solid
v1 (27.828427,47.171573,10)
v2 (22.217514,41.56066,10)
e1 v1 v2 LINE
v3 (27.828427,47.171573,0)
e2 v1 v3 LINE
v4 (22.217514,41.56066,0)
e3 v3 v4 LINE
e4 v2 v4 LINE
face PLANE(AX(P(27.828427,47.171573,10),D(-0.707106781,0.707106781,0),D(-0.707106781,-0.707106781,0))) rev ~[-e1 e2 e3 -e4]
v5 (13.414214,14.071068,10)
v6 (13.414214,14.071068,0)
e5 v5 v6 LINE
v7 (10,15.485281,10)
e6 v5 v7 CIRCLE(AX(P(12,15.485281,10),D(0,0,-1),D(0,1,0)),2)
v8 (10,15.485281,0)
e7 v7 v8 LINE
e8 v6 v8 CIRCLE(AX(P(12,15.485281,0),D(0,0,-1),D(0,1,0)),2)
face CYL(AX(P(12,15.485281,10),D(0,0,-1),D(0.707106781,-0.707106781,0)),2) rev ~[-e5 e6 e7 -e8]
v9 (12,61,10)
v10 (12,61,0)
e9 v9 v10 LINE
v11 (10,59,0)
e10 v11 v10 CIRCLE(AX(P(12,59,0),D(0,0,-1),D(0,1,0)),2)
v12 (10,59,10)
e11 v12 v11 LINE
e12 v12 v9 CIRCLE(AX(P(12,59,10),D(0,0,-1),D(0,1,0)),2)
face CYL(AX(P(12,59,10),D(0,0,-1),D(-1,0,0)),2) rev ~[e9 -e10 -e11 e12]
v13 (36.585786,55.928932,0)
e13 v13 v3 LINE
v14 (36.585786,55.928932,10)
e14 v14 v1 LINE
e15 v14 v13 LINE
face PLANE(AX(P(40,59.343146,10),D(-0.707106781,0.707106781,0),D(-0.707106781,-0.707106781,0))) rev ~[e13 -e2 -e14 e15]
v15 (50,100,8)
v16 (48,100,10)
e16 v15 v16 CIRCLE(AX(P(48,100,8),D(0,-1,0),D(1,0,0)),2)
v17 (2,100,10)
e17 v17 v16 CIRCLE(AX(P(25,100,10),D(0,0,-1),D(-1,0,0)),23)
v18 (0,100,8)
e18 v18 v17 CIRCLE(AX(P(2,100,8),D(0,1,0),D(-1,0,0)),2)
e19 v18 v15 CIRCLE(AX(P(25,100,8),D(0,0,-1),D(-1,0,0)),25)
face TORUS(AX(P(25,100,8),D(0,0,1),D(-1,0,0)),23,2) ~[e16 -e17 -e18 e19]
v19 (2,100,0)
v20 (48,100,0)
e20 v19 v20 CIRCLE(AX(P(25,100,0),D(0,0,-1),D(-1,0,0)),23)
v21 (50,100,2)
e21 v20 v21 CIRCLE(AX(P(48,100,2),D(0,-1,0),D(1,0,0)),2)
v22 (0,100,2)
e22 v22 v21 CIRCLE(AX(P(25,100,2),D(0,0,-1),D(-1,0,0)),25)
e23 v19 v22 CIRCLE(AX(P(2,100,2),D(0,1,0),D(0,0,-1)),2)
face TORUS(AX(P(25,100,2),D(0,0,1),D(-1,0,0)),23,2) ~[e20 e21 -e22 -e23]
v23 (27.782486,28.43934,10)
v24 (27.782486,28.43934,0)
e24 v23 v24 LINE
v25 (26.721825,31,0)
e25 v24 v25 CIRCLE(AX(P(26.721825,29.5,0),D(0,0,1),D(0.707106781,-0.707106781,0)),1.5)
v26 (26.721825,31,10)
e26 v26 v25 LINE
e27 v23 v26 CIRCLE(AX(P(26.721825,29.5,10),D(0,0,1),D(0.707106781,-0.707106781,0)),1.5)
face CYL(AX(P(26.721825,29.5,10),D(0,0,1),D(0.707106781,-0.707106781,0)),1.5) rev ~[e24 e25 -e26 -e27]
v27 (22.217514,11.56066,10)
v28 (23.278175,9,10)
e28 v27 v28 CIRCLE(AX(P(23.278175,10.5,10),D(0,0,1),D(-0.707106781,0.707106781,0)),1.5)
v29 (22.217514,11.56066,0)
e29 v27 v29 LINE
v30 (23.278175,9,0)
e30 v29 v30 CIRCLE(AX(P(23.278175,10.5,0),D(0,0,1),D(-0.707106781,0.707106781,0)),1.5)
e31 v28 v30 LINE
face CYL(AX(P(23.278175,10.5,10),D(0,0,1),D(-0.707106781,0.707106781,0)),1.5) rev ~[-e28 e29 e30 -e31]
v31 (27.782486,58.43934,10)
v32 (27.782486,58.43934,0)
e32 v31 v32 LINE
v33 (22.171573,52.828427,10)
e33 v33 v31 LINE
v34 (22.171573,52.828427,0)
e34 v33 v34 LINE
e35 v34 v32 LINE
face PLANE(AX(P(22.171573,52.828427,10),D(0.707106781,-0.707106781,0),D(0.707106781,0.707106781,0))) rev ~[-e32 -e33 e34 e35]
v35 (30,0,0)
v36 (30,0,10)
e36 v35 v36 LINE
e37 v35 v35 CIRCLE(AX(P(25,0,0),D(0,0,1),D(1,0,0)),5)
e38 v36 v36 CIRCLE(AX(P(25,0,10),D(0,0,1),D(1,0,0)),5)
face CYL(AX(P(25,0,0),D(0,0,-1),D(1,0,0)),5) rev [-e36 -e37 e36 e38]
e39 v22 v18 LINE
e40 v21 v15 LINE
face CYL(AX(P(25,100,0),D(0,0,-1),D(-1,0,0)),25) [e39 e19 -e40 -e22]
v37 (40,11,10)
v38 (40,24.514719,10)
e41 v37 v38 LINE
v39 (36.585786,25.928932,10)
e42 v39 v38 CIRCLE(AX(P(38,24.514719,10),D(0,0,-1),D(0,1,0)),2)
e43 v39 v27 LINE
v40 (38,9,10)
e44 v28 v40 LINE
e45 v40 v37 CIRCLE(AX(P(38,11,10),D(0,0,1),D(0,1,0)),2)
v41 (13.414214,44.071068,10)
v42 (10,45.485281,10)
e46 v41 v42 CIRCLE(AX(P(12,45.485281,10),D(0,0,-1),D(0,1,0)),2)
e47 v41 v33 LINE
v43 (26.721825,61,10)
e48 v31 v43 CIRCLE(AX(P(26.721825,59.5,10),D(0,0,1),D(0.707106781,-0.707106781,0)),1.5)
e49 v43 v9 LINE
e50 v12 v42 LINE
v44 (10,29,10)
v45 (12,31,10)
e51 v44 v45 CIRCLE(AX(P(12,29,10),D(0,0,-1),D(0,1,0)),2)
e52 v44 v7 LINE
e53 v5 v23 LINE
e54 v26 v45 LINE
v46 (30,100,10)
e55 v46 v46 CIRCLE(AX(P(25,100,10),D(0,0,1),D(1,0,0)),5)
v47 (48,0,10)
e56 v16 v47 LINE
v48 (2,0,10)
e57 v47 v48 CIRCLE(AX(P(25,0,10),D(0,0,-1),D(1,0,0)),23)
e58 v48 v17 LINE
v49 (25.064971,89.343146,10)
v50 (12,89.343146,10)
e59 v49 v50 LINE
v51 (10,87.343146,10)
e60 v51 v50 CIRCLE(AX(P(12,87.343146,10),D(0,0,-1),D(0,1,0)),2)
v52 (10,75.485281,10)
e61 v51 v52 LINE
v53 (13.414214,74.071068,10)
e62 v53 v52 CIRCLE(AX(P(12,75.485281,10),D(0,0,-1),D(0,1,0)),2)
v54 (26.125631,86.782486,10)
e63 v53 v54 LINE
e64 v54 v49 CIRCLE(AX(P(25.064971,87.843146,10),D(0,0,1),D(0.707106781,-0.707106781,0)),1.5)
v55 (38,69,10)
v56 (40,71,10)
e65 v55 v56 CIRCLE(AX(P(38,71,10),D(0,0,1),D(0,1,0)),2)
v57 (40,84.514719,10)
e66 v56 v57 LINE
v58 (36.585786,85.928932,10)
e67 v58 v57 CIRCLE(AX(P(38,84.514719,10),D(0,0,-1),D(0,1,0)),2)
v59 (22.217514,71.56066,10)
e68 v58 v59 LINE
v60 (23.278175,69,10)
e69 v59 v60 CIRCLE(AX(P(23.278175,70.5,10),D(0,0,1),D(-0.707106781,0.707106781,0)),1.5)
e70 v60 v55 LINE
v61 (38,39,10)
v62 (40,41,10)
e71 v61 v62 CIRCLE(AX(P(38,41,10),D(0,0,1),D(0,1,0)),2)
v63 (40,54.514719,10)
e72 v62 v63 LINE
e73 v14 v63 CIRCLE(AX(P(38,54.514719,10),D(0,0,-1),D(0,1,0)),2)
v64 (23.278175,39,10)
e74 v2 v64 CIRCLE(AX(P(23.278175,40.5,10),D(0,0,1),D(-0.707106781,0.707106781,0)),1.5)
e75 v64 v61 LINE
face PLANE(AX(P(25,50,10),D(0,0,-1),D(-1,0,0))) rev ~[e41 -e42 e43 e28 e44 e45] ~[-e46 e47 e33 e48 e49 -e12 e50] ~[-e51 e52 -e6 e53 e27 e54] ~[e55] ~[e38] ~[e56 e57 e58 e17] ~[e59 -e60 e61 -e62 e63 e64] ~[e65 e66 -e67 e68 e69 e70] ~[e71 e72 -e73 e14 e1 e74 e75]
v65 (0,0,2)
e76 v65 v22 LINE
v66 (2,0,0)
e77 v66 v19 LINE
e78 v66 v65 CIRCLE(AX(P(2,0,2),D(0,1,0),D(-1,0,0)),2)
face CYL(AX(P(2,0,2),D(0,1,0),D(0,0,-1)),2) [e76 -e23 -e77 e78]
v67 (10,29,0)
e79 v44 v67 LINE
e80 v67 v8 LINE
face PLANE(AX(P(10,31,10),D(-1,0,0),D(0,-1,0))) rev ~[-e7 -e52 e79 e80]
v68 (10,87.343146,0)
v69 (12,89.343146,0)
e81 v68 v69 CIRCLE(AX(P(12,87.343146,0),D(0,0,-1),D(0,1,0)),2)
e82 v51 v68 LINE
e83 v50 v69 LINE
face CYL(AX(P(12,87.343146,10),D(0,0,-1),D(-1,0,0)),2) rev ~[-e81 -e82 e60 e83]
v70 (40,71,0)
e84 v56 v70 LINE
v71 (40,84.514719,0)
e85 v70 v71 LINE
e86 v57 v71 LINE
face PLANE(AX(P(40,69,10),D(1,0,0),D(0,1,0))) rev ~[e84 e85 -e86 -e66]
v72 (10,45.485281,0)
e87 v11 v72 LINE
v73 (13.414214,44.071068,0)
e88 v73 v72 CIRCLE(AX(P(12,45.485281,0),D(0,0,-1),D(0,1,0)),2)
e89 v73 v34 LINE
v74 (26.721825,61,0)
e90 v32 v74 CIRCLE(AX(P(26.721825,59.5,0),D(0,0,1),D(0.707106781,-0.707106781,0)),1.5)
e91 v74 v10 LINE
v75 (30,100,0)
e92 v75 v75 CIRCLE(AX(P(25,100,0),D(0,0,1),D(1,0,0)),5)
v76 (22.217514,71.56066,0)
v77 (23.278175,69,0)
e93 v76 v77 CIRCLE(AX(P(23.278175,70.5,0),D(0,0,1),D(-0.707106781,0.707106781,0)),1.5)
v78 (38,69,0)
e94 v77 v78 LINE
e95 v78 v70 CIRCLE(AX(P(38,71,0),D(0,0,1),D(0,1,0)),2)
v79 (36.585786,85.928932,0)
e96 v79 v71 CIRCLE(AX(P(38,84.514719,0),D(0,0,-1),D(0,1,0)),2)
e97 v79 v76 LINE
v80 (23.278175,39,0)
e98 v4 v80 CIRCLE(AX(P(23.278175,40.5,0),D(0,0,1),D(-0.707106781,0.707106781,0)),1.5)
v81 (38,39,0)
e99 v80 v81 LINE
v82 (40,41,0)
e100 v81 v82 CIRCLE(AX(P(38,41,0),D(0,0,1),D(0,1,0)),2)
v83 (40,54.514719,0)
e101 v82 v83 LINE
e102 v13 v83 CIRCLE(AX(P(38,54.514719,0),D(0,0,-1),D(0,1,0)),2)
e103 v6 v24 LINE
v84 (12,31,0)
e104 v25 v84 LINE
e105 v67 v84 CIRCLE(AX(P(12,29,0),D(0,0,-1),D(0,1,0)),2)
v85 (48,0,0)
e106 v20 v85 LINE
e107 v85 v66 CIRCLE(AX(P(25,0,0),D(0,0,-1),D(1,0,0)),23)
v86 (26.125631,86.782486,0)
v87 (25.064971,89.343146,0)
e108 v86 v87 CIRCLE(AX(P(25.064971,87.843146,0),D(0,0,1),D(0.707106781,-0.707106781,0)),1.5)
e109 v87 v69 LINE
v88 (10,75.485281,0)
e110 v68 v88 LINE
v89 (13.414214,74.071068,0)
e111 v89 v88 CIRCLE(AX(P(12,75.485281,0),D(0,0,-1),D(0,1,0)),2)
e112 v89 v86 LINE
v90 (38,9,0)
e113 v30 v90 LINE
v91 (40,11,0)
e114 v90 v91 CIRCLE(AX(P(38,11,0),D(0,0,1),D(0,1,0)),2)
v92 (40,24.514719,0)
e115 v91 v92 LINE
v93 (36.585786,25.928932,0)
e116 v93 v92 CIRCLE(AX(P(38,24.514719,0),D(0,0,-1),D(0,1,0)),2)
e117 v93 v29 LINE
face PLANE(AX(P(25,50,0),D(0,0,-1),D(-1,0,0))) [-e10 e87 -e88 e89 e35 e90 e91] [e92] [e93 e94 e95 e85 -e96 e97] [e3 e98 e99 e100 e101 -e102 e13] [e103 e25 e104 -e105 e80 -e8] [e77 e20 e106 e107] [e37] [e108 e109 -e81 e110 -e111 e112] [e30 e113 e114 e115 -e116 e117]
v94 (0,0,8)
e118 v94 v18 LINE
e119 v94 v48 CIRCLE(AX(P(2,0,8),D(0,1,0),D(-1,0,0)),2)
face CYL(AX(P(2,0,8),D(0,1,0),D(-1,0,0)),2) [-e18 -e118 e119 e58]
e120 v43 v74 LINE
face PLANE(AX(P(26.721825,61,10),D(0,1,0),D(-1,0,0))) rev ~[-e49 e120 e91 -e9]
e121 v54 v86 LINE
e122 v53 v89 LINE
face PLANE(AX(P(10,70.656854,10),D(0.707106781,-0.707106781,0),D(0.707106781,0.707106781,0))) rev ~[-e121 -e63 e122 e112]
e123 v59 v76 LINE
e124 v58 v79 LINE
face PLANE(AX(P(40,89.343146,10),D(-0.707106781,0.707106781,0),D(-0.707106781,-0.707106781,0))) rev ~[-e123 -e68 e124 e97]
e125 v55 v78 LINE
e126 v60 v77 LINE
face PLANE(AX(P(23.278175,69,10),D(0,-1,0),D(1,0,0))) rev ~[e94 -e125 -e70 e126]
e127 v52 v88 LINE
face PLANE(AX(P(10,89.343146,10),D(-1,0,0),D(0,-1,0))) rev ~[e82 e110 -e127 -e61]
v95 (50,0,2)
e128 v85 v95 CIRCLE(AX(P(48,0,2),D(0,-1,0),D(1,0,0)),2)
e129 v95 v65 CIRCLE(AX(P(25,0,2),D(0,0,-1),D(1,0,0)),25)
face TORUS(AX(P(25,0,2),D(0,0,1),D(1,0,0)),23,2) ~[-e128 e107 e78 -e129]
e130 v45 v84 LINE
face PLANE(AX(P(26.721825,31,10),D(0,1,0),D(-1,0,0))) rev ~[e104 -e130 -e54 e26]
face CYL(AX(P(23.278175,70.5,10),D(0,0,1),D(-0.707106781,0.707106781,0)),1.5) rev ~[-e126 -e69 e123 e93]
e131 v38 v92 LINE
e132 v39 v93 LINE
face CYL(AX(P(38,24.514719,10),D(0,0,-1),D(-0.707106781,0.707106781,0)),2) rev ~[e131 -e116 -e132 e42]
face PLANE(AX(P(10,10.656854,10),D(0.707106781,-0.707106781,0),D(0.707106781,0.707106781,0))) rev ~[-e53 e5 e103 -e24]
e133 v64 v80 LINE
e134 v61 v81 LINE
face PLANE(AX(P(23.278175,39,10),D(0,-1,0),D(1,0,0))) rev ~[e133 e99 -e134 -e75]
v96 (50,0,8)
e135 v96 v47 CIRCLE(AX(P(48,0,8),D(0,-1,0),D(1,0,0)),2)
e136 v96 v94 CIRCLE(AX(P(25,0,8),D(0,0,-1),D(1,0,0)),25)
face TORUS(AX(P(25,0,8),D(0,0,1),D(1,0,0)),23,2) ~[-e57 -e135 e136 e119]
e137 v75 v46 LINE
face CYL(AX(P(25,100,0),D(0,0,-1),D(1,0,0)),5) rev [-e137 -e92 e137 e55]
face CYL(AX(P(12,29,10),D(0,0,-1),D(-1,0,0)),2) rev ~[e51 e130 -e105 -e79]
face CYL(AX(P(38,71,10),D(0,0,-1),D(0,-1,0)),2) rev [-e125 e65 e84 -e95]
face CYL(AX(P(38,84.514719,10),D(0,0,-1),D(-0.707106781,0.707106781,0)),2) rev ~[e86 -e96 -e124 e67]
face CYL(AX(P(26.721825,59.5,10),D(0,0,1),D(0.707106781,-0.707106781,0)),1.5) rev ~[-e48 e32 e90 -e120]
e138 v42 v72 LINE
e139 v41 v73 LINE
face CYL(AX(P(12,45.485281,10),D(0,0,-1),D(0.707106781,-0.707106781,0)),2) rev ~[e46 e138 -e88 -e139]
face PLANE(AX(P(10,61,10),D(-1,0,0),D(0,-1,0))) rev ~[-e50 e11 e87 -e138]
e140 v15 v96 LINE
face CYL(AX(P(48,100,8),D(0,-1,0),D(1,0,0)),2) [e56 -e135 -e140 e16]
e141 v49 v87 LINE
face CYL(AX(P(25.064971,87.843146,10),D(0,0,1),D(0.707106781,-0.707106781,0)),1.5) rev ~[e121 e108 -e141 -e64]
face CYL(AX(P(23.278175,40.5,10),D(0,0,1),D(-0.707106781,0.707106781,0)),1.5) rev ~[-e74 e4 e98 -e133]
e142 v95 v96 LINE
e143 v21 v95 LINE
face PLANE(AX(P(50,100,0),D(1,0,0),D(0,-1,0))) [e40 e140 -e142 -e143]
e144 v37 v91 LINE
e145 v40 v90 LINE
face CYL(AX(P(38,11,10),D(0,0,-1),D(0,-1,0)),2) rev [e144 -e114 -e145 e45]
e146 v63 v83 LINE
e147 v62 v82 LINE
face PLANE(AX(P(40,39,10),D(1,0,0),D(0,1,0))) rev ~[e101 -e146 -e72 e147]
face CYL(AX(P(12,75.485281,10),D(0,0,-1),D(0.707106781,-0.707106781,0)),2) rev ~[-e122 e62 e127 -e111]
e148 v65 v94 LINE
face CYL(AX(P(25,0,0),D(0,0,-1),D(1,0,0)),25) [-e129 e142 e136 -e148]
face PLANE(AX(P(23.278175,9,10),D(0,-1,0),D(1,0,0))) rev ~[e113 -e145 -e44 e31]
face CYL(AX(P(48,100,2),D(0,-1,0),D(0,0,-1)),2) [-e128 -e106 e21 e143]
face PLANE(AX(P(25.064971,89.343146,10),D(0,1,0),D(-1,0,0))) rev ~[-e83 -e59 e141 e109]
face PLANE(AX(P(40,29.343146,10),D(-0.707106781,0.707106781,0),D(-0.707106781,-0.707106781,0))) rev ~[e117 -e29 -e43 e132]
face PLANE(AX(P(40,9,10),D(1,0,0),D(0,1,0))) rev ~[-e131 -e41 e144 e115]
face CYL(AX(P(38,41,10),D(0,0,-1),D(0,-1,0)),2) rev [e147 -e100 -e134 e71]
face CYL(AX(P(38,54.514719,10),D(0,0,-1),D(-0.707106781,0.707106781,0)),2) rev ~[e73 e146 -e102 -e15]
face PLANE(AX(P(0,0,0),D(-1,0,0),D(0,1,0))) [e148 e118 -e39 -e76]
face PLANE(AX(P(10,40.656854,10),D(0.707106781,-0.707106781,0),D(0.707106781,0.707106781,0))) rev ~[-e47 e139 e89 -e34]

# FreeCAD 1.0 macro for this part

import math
import FreeCAD as App
import Part
import Sketcher
from FreeCAD import Vector
Q = App.Units.Quantity


def edges_at(feature, points):
    """Names of the edges that pass closest to the given points."""
    edges = feature.Shape.Edges
    near = lambda p: min(range(len(edges)), key=lambda i: edges[i].distToShape(Part.Vertex(*p))[0])
    return sorted({f"Edge{near(p) + 1}" for p in points})

doc = App.newDocument("Part")
body = doc.addObject("PartDesign::Body", "Body")

# Sketch on XY plane
sketch1 = body.newObject("Sketcher::SketchObject", "Sketch")
sketch1.AttachmentSupport = (doc.getObject("XY_Plane"), [""])
sketch1.MapMode = "FlatFace"
sketch1.addGeometry([
    Part.LineSegment(Vector(0, 100, 0), Vector(0, 0, 0)),  # 0
    Part.ArcOfCircle(Part.Circle(Vector(25, 0, 0), Vector(0, 0, 1), 25), math.radians(180), math.radians(360)),  # 1
    Part.LineSegment(Vector(50, 0, 0), Vector(50, 100, 0)),  # 2
    Part.ArcOfCircle(Part.Circle(Vector(25, 100, 0), Vector(0, 0, 1), 25), math.radians(0), math.radians(180)),  # 3
    Part.Circle(Vector(25, 100, 0), Vector(0, 0, 1), 5),  # 4
    Part.Circle(Vector(25, 0, 0), Vector(0, 0, 1), 5),  # 5
], False)
sketch1.addConstraint([
    Sketcher.Constraint("Tangent", 0, 2, 1, 1),
    Sketcher.Constraint("Tangent", 1, 2, 2, 1),
    Sketcher.Constraint("Tangent", 2, 2, 3, 1),
    Sketcher.Constraint("Tangent", 3, 2, 0, 1),
    Sketcher.Constraint("Vertical", 0),
    Sketcher.Constraint("Vertical", 2),
    Sketcher.Constraint("Coincident", 0, 2, -1, 1),
    Sketcher.Constraint("Coincident", 4, 3, 3, 3),
    Sketcher.Constraint("Coincident", 5, 3, 1, 3),
    Sketcher.Constraint("Equal", 4, 5),
    Sketcher.Constraint("Diameter", 4, 10.0),
    Sketcher.Constraint("Radius", 1, 25.0),
    Sketcher.Constraint("DistanceY", 0, 2, 0, 1, 100.0),
])
pad1 = body.newObject("PartDesign::Pad", "Pad")
pad1.Profile = sketch1
pad1.Length = 10

# Sketch on XY plane
sketch2 = body.newObject("Sketcher::SketchObject", "Sketch001")
sketch2.AttachmentSupport = (doc.getObject("XY_Plane"), [""])
sketch2.MapMode = "FlatFace"
sketch2.AttachmentOffset = App.Placement(Vector(0, 0, 10), App.Rotation())
sketch2.addGeometry([
    Part.LineSegment(Vector(25.064971, 89.343146, 0), Vector(10, 89.343146, 0)),  # 0
    Part.LineSegment(Vector(10, 89.343146, 0), Vector(10, 70.656854, 0)),  # 1
    Part.LineSegment(Vector(10, 70.656854, 0), Vector(26.125631, 86.782486, 0)),  # 2
    Part.ArcOfCircle(Part.Circle(Vector(25.064971, 87.843146, 0), Vector(0, 0, 1), 1.5), math.radians(-45), math.radians(90)),  # 3
    Part.LineSegment(Vector(40, 69, 0), Vector(40, 89.343146, 0)),  # 4
    Part.LineSegment(Vector(40, 89.343146, 0), Vector(22.217514, 71.56066, 0)),  # 5
    Part.ArcOfCircle(Part.Circle(Vector(23.278175, 70.5, 0), Vector(0, 0, 1), 1.5), math.radians(135), math.radians(270)),  # 6
    Part.LineSegment(Vector(23.278175, 69, 0), Vector(40, 69, 0)),  # 7
    Part.LineSegment(Vector(26.721825, 61, 0), Vector(10, 61, 0)),  # 8
    Part.LineSegment(Vector(10, 61, 0), Vector(10, 40.656854, 0)),  # 9
    Part.LineSegment(Vector(10, 40.656854, 0), Vector(22.171573, 52.828427, 0)),  # 10
    Part.LineSegment(Vector(22.171573, 52.828427, 0), Vector(27.782486, 58.43934, 0)),  # 11
    Part.ArcOfCircle(Part.Circle(Vector(26.721825, 59.5, 0), Vector(0, 0, 1), 1.5), math.radians(-45), math.radians(90)),  # 12
    Part.LineSegment(Vector(40, 39, 0), Vector(40, 59.343146, 0)),  # 13
    Part.LineSegment(Vector(40, 59.343146, 0), Vector(27.828427, 47.171573, 0)),  # 14
    Part.LineSegment(Vector(27.828427, 47.171573, 0), Vector(22.217514, 41.56066, 0)),  # 15
    Part.ArcOfCircle(Part.Circle(Vector(23.278175, 40.5, 0), Vector(0, 0, 1), 1.5), math.radians(135), math.radians(270)),  # 16
    Part.LineSegment(Vector(23.278175, 39, 0), Vector(40, 39, 0)),  # 17
    Part.LineSegment(Vector(26.721825, 31, 0), Vector(10, 31, 0)),  # 18
    Part.LineSegment(Vector(10, 31, 0), Vector(10, 10.656854, 0)),  # 19
    Part.LineSegment(Vector(10, 10.656854, 0), Vector(27.782486, 28.43934, 0)),  # 20
    Part.ArcOfCircle(Part.Circle(Vector(26.721825, 29.5, 0), Vector(0, 0, 1), 1.5), math.radians(-45), math.radians(90)),  # 21
    Part.LineSegment(Vector(40, 9, 0), Vector(40, 29.343146, 0)),  # 22
    Part.LineSegment(Vector(40, 29.343146, 0), Vector(22.217514, 11.56066, 0)),  # 23
    Part.ArcOfCircle(Part.Circle(Vector(23.278175, 10.5, 0), Vector(0, 0, 1), 1.5), math.radians(135), math.radians(270)),  # 24
    Part.LineSegment(Vector(23.278175, 9, 0), Vector(40, 9, 0)),  # 25
], False)
sketch2.addConstraint([
    Sketcher.Constraint("Coincident", 0, 2, 1, 1),
    Sketcher.Constraint("Coincident", 1, 2, 2, 1),
    Sketcher.Constraint("Tangent", 2, 2, 3, 1),
    Sketcher.Constraint("Tangent", 3, 2, 0, 1),
    Sketcher.Constraint("Coincident", 4, 2, 5, 1),
    Sketcher.Constraint("Tangent", 5, 2, 6, 1),
    Sketcher.Constraint("Tangent", 6, 2, 7, 1),
    Sketcher.Constraint("Coincident", 7, 2, 4, 1),
    Sketcher.Constraint("Coincident", 8, 2, 9, 1),
    Sketcher.Constraint("Coincident", 9, 2, 10, 1),
    Sketcher.Constraint("Coincident", 10, 2, 11, 1),
    Sketcher.Constraint("Tangent", 11, 2, 12, 1),
    Sketcher.Constraint("Tangent", 12, 2, 8, 1),
    Sketcher.Constraint("Coincident", 13, 2, 14, 1),
    Sketcher.Constraint("Coincident", 14, 2, 15, 1),
    Sketcher.Constraint("Tangent", 15, 2, 16, 1),
    Sketcher.Constraint("Tangent", 16, 2, 17, 1),
    Sketcher.Constraint("Coincident", 17, 2, 13, 1),
    Sketcher.Constraint("Coincident", 18, 2, 19, 1),
    Sketcher.Constraint("Coincident", 19, 2, 20, 1),
    Sketcher.Constraint("Tangent", 20, 2, 21, 1),
    Sketcher.Constraint("Tangent", 21, 2, 18, 1),
    Sketcher.Constraint("Coincident", 22, 2, 23, 1),
    Sketcher.Constraint("Tangent", 23, 2, 24, 1),
    Sketcher.Constraint("Tangent", 24, 2, 25, 1),
    Sketcher.Constraint("Coincident", 25, 2, 22, 1),
    Sketcher.Constraint("Horizontal", 0),
    Sketcher.Constraint("Vertical", 1),
    Sketcher.Constraint("Vertical", 4),
    Sketcher.Constraint("Horizontal", 7),
    Sketcher.Constraint("Horizontal", 8),
    Sketcher.Constraint("Vertical", 9),
    Sketcher.Constraint("Vertical", 13),
    Sketcher.Constraint("Horizontal", 17),
    Sketcher.Constraint("Horizontal", 18),
    Sketcher.Constraint("Vertical", 19),
    Sketcher.Constraint("Vertical", 22),
    Sketcher.Constraint("Horizontal", 25),
    Sketcher.Constraint("Equal", 3, 6),
    Sketcher.Constraint("Equal", 6, 12),
    Sketcher.Constraint("Equal", 12, 16),
    Sketcher.Constraint("Equal", 16, 21),
    Sketcher.Constraint("Equal", 21, 24),
    Sketcher.Constraint("Parallel", 2, 5),
    Sketcher.Constraint("Parallel", 5, 10),
    Sketcher.Constraint("Parallel", 10, 11),
    Sketcher.Constraint("Parallel", 11, 14),
    Sketcher.Constraint("Parallel", 14, 15),
    Sketcher.Constraint("Parallel", 15, 20),
    Sketcher.Constraint("Parallel", 20, 23),
    Sketcher.Constraint("Horizontal", 3, 2, 4, 2),
    Sketcher.Constraint("Vertical", 6, 3, 16, 3),
    Sketcher.Constraint("Vertical", 12, 3, 21, 3),
    Sketcher.Constraint("Vertical", 16, 3, 24, 3),
    Sketcher.Constraint("Vertical", 1, 2, 8, 2),
    Sketcher.Constraint("Vertical", 7, 2, 13, 2),
    Sketcher.Constraint("Vertical", 9, 2, 18, 2),
    Sketcher.Constraint("Vertical", 17, 2, 22, 2),
    Sketcher.Constraint("Equal", 7, 8),
    Sketcher.Constraint("Equal", 10, 14),
    Sketcher.Constraint("Radius", 3, 1.5),
    Sketcher.Constraint("Angle", 2, Q("45 deg")),
    Sketcher.Constraint("DistanceX", -1, 1, 0, 2, 10.0),
    Sketcher.Constraint("DistanceX", -1, 1, 4, 2, 40.0),
    Sketcher.Constraint("DistanceY", -1, 1, 6, 2, 69.0),
    Sketcher.Constraint("DistanceY", -1, 1, 8, 2, 61.0),
    Sketcher.Constraint("DistanceY", -1, 1, 16, 2, 39.0),
    Sketcher.Constraint("DistanceY", -1, 1, 18, 2, 31.0),
    Sketcher.Constraint("DistanceY", -1, 1, 24, 2, 9.0),
    Sketcher.Constraint("DistanceY", 9, 2, 1, 2, 30.0),
    Sketcher.Constraint("DistanceX", 0, 2, 0, 1, 15.064971),
    Sketcher.Constraint("DistanceX", 10, 2, 16, 3, 1.106602),
])
pocket1 = body.newObject("PartDesign::Pocket", "Pocket")
pocket1.Profile = sketch2
pocket1.Length = 10
doc.recompute()

fillet = body.newObject("PartDesign::Fillet", "Fillet")
fillet.Base = (pocket1, edges_at(pocket1, [
    (10, 10.657, 5),
    (10, 31, 5),
    (40, 59.343, 5),
    (40, 39, 5),
    (10, 40.657, 5),
    (10, 61, 5),
    (40, 89.343, 5),
    (40, 69, 5),
    (40, 29.343, 5),
    (40, 9, 5),
    (10, 70.657, 5),
    (10, 89.343, 5),
]))
fillet.Radius = 2
doc.recompute()

fillet2 = body.newObject("PartDesign::Fillet", "Fillet001")
fillet2.Base = (fillet, edges_at(fillet, [
    (25, -25, 0),
    (0, 50, 0),
    (25, -25, 10),
    (50, 50, 10),
    (25, 125, 10),
    (0, 50, 10),
    (25, 125, 0),
    (50, 50, 0),
]))
fillet2.Radius = 2

doc.recompute()
